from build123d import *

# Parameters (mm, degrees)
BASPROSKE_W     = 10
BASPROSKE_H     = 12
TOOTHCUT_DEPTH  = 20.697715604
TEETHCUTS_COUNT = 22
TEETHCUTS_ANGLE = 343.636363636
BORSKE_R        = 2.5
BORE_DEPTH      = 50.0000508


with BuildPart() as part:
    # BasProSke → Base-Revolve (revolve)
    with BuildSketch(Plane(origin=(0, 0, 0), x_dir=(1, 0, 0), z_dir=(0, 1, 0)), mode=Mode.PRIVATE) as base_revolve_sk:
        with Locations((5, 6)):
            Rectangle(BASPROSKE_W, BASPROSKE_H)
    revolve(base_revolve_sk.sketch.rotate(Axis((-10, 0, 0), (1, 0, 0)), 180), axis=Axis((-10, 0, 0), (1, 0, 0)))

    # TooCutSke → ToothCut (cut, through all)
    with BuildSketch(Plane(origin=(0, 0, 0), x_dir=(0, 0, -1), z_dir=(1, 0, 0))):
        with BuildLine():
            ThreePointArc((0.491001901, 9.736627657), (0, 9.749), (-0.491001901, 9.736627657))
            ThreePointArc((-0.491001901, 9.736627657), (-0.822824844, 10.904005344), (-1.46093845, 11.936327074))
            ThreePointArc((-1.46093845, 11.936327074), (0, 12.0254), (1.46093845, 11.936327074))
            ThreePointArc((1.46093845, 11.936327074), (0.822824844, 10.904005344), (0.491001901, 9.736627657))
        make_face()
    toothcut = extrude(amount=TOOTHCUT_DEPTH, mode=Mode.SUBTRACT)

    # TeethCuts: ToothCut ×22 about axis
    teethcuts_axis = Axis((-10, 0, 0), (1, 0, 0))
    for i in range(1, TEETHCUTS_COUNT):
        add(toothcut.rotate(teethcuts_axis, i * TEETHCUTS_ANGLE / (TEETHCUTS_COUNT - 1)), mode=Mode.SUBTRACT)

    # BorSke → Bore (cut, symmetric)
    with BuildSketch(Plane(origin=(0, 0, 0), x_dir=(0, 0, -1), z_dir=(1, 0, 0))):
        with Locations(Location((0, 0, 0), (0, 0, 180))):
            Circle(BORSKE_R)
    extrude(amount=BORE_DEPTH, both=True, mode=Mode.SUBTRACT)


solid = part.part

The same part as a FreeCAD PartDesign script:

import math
import FreeCAD as App
import Part
import Sketcher


def add_polygon(sketch, points):
    """Adds a closed chain of lines whose ends are joined by coincident constraints."""
    first, n = sketch.GeometryCount, len(points)
    for a, b in zip(points, points[1:] + points[:1]):
        sketch.addGeometry(Part.LineSegment(App.Vector(*a, 0), App.Vector(*b, 0)), False)
    for i in range(n):
        sketch.addConstraint(Sketcher.Constraint("Coincident", first + i, 2, first + (i + 1) % n, 1))

doc = App.newDocument("Part")
params = doc.addObject("Spreadsheet::Sheet", "Params")
for row, (alias, value) in enumerate([
    ("sketch1_width", "10 mm"),
    ("sketch1_height", "12 mm"),
    ("revolution_angle", "360 deg"),
    ("sketch2_radius", "4.4 mm"),
    ("sketch3_diameter", "5 mm"),
    ("pocket2_length", "100.000102 mm"),
], start=1):
    params.set(f"A{row}", alias)
    params.set(f"B{row}", "=" + value)
    params.setAlias(f"B{row}", alias)

body = doc.addObject("PartDesign::Body", "Body")

sketch1 = body.newObject("Sketcher::SketchObject", "Sketch")
sketch1.AttachmentSupport = (doc.getObject("XZ_Plane"), [""])
sketch1.MapMode = "FlatFace"
add_polygon(sketch1, [(0, -12), (0, 0), (10, 0), (10, -12)])
sketch1.addConstraint([
    Sketcher.Constraint("Vertical", 0),
    Sketcher.Constraint("Horizontal", 1),
    Sketcher.Constraint("Vertical", 2),
    Sketcher.Constraint("Horizontal", 3),
    Sketcher.Constraint("Coincident", 0, 2, -1, 1),
    Sketcher.Constraint("DistanceX", 1, 1, 1, 2, 10.0),
    Sketcher.Constraint("DistanceY", 0, 1, 0, 2, 12.0),
])
sketch1.setExpression("Constraints[9]", "Params.sketch1_width")
sketch1.setExpression("Constraints[10]", "Params.sketch1_height")
revolution = body.newObject("PartDesign::Revolution", "Revolution")
revolution.Profile = sketch1
revolution.ReferenceAxis = (sketch1, ["H_Axis"])
revolution.setExpression("Angle", "Params.revolution_angle")

sketch2 = body.newObject("Sketcher::SketchObject", "Sketch001")
sketch2.AttachmentSupport = (doc.getObject("YZ_Plane"), [""])
sketch2.MapMode = "FlatFace"
sketch2.addGeometry([
    Part.ArcOfCircle(Part.Circle(App.Vector(0, 0, 0), App.Vector(0, 0, 1), 9.7), math.radians(-2.89), math.radians(2.89)),
    Part.ArcOfCircle(Part.Circle(App.Vector(9.1, -4.8, 0), App.Vector(0, 0, 1), 4.4), math.radians(50), math.radians(82)),
    Part.ArcOfCircle(Part.Circle(App.Vector(0, 0, 0), App.Vector(0, 0, 1), 12), math.radians(-6.98), math.radians(6.98)),
    Part.ArcOfCircle(Part.Circle(App.Vector(9.1, 4.8, 0), App.Vector(0, 0, 1), 4.4), math.radians(-82), math.radians(-50)),
], False)
sketch2.addConstraint([
    Sketcher.Constraint("Coincident", 0, 1, 1, 2),
    Sketcher.Constraint("Coincident", 1, 1, 2, 1),
    Sketcher.Constraint("Coincident", 2, 2, 3, 2),
    Sketcher.Constraint("Coincident", 3, 1, 0, 2),
    Sketcher.Constraint("Coincident", 0, 3, -1, 1),
    Sketcher.Constraint("Coincident", 2, 3, -1, 1),
    Sketcher.Constraint("Equal", 1, 3),
    Sketcher.Constraint("Symmetric", 1, 3, 3, 3, -1),
    Sketcher.Constraint("Radius", 1, 4.4),
    Sketcher.Constraint("Radius", 0, 9.749),
    Sketcher.Constraint("Radius", 2, 12.0254),
    Sketcher.Constraint("DistanceY", 0, 1, -1, 1, 0.491002),
    Sketcher.Constraint("DistanceX", 0, 1, 1, 1, 2.199699),
])
sketch2.setExpression("Constraints[8]", "Params.sketch2_radius")
pocket1 = body.newObject("PartDesign::Pocket", "Pocket")
pocket1.Profile = sketch2
pocket1.Type = "ThroughAll"
pocket1.Reversed = True
doc.recompute()

polarpattern = body.newObject("PartDesign::PolarPattern", "PolarPattern")
polarpattern.Originals = [pocket1]
polarpattern.Axis = (doc.getObject("X_Axis"), [""])
polarpattern.Angle = 360
polarpattern.Occurrences = 22
body.Tip = polarpattern

sketch3 = body.newObject("Sketcher::SketchObject", "Sketch002")
sketch3.AttachmentSupport = (doc.getObject("YZ_Plane"), [""])
sketch3.MapMode = "FlatFace"
sketch3.addGeometry(Part.Circle(App.Vector(0, 0, 0), App.Vector(0, 0, 1), 2.5), False)
sketch3.addConstraint([
    Sketcher.Constraint("Coincident", 0, 3, -1, 1),
    Sketcher.Constraint("Diameter", 0, 5.0),
])
sketch3.setExpression("Constraints[1]", "Params.sketch3_diameter")
pocket2 = body.newObject("PartDesign::Pocket", "Pocket001")
pocket2.Profile = sketch3
pocket2.setExpression("Length", "Params.pocket2_length")
pocket2.Midplane = True

doc.recompute()
